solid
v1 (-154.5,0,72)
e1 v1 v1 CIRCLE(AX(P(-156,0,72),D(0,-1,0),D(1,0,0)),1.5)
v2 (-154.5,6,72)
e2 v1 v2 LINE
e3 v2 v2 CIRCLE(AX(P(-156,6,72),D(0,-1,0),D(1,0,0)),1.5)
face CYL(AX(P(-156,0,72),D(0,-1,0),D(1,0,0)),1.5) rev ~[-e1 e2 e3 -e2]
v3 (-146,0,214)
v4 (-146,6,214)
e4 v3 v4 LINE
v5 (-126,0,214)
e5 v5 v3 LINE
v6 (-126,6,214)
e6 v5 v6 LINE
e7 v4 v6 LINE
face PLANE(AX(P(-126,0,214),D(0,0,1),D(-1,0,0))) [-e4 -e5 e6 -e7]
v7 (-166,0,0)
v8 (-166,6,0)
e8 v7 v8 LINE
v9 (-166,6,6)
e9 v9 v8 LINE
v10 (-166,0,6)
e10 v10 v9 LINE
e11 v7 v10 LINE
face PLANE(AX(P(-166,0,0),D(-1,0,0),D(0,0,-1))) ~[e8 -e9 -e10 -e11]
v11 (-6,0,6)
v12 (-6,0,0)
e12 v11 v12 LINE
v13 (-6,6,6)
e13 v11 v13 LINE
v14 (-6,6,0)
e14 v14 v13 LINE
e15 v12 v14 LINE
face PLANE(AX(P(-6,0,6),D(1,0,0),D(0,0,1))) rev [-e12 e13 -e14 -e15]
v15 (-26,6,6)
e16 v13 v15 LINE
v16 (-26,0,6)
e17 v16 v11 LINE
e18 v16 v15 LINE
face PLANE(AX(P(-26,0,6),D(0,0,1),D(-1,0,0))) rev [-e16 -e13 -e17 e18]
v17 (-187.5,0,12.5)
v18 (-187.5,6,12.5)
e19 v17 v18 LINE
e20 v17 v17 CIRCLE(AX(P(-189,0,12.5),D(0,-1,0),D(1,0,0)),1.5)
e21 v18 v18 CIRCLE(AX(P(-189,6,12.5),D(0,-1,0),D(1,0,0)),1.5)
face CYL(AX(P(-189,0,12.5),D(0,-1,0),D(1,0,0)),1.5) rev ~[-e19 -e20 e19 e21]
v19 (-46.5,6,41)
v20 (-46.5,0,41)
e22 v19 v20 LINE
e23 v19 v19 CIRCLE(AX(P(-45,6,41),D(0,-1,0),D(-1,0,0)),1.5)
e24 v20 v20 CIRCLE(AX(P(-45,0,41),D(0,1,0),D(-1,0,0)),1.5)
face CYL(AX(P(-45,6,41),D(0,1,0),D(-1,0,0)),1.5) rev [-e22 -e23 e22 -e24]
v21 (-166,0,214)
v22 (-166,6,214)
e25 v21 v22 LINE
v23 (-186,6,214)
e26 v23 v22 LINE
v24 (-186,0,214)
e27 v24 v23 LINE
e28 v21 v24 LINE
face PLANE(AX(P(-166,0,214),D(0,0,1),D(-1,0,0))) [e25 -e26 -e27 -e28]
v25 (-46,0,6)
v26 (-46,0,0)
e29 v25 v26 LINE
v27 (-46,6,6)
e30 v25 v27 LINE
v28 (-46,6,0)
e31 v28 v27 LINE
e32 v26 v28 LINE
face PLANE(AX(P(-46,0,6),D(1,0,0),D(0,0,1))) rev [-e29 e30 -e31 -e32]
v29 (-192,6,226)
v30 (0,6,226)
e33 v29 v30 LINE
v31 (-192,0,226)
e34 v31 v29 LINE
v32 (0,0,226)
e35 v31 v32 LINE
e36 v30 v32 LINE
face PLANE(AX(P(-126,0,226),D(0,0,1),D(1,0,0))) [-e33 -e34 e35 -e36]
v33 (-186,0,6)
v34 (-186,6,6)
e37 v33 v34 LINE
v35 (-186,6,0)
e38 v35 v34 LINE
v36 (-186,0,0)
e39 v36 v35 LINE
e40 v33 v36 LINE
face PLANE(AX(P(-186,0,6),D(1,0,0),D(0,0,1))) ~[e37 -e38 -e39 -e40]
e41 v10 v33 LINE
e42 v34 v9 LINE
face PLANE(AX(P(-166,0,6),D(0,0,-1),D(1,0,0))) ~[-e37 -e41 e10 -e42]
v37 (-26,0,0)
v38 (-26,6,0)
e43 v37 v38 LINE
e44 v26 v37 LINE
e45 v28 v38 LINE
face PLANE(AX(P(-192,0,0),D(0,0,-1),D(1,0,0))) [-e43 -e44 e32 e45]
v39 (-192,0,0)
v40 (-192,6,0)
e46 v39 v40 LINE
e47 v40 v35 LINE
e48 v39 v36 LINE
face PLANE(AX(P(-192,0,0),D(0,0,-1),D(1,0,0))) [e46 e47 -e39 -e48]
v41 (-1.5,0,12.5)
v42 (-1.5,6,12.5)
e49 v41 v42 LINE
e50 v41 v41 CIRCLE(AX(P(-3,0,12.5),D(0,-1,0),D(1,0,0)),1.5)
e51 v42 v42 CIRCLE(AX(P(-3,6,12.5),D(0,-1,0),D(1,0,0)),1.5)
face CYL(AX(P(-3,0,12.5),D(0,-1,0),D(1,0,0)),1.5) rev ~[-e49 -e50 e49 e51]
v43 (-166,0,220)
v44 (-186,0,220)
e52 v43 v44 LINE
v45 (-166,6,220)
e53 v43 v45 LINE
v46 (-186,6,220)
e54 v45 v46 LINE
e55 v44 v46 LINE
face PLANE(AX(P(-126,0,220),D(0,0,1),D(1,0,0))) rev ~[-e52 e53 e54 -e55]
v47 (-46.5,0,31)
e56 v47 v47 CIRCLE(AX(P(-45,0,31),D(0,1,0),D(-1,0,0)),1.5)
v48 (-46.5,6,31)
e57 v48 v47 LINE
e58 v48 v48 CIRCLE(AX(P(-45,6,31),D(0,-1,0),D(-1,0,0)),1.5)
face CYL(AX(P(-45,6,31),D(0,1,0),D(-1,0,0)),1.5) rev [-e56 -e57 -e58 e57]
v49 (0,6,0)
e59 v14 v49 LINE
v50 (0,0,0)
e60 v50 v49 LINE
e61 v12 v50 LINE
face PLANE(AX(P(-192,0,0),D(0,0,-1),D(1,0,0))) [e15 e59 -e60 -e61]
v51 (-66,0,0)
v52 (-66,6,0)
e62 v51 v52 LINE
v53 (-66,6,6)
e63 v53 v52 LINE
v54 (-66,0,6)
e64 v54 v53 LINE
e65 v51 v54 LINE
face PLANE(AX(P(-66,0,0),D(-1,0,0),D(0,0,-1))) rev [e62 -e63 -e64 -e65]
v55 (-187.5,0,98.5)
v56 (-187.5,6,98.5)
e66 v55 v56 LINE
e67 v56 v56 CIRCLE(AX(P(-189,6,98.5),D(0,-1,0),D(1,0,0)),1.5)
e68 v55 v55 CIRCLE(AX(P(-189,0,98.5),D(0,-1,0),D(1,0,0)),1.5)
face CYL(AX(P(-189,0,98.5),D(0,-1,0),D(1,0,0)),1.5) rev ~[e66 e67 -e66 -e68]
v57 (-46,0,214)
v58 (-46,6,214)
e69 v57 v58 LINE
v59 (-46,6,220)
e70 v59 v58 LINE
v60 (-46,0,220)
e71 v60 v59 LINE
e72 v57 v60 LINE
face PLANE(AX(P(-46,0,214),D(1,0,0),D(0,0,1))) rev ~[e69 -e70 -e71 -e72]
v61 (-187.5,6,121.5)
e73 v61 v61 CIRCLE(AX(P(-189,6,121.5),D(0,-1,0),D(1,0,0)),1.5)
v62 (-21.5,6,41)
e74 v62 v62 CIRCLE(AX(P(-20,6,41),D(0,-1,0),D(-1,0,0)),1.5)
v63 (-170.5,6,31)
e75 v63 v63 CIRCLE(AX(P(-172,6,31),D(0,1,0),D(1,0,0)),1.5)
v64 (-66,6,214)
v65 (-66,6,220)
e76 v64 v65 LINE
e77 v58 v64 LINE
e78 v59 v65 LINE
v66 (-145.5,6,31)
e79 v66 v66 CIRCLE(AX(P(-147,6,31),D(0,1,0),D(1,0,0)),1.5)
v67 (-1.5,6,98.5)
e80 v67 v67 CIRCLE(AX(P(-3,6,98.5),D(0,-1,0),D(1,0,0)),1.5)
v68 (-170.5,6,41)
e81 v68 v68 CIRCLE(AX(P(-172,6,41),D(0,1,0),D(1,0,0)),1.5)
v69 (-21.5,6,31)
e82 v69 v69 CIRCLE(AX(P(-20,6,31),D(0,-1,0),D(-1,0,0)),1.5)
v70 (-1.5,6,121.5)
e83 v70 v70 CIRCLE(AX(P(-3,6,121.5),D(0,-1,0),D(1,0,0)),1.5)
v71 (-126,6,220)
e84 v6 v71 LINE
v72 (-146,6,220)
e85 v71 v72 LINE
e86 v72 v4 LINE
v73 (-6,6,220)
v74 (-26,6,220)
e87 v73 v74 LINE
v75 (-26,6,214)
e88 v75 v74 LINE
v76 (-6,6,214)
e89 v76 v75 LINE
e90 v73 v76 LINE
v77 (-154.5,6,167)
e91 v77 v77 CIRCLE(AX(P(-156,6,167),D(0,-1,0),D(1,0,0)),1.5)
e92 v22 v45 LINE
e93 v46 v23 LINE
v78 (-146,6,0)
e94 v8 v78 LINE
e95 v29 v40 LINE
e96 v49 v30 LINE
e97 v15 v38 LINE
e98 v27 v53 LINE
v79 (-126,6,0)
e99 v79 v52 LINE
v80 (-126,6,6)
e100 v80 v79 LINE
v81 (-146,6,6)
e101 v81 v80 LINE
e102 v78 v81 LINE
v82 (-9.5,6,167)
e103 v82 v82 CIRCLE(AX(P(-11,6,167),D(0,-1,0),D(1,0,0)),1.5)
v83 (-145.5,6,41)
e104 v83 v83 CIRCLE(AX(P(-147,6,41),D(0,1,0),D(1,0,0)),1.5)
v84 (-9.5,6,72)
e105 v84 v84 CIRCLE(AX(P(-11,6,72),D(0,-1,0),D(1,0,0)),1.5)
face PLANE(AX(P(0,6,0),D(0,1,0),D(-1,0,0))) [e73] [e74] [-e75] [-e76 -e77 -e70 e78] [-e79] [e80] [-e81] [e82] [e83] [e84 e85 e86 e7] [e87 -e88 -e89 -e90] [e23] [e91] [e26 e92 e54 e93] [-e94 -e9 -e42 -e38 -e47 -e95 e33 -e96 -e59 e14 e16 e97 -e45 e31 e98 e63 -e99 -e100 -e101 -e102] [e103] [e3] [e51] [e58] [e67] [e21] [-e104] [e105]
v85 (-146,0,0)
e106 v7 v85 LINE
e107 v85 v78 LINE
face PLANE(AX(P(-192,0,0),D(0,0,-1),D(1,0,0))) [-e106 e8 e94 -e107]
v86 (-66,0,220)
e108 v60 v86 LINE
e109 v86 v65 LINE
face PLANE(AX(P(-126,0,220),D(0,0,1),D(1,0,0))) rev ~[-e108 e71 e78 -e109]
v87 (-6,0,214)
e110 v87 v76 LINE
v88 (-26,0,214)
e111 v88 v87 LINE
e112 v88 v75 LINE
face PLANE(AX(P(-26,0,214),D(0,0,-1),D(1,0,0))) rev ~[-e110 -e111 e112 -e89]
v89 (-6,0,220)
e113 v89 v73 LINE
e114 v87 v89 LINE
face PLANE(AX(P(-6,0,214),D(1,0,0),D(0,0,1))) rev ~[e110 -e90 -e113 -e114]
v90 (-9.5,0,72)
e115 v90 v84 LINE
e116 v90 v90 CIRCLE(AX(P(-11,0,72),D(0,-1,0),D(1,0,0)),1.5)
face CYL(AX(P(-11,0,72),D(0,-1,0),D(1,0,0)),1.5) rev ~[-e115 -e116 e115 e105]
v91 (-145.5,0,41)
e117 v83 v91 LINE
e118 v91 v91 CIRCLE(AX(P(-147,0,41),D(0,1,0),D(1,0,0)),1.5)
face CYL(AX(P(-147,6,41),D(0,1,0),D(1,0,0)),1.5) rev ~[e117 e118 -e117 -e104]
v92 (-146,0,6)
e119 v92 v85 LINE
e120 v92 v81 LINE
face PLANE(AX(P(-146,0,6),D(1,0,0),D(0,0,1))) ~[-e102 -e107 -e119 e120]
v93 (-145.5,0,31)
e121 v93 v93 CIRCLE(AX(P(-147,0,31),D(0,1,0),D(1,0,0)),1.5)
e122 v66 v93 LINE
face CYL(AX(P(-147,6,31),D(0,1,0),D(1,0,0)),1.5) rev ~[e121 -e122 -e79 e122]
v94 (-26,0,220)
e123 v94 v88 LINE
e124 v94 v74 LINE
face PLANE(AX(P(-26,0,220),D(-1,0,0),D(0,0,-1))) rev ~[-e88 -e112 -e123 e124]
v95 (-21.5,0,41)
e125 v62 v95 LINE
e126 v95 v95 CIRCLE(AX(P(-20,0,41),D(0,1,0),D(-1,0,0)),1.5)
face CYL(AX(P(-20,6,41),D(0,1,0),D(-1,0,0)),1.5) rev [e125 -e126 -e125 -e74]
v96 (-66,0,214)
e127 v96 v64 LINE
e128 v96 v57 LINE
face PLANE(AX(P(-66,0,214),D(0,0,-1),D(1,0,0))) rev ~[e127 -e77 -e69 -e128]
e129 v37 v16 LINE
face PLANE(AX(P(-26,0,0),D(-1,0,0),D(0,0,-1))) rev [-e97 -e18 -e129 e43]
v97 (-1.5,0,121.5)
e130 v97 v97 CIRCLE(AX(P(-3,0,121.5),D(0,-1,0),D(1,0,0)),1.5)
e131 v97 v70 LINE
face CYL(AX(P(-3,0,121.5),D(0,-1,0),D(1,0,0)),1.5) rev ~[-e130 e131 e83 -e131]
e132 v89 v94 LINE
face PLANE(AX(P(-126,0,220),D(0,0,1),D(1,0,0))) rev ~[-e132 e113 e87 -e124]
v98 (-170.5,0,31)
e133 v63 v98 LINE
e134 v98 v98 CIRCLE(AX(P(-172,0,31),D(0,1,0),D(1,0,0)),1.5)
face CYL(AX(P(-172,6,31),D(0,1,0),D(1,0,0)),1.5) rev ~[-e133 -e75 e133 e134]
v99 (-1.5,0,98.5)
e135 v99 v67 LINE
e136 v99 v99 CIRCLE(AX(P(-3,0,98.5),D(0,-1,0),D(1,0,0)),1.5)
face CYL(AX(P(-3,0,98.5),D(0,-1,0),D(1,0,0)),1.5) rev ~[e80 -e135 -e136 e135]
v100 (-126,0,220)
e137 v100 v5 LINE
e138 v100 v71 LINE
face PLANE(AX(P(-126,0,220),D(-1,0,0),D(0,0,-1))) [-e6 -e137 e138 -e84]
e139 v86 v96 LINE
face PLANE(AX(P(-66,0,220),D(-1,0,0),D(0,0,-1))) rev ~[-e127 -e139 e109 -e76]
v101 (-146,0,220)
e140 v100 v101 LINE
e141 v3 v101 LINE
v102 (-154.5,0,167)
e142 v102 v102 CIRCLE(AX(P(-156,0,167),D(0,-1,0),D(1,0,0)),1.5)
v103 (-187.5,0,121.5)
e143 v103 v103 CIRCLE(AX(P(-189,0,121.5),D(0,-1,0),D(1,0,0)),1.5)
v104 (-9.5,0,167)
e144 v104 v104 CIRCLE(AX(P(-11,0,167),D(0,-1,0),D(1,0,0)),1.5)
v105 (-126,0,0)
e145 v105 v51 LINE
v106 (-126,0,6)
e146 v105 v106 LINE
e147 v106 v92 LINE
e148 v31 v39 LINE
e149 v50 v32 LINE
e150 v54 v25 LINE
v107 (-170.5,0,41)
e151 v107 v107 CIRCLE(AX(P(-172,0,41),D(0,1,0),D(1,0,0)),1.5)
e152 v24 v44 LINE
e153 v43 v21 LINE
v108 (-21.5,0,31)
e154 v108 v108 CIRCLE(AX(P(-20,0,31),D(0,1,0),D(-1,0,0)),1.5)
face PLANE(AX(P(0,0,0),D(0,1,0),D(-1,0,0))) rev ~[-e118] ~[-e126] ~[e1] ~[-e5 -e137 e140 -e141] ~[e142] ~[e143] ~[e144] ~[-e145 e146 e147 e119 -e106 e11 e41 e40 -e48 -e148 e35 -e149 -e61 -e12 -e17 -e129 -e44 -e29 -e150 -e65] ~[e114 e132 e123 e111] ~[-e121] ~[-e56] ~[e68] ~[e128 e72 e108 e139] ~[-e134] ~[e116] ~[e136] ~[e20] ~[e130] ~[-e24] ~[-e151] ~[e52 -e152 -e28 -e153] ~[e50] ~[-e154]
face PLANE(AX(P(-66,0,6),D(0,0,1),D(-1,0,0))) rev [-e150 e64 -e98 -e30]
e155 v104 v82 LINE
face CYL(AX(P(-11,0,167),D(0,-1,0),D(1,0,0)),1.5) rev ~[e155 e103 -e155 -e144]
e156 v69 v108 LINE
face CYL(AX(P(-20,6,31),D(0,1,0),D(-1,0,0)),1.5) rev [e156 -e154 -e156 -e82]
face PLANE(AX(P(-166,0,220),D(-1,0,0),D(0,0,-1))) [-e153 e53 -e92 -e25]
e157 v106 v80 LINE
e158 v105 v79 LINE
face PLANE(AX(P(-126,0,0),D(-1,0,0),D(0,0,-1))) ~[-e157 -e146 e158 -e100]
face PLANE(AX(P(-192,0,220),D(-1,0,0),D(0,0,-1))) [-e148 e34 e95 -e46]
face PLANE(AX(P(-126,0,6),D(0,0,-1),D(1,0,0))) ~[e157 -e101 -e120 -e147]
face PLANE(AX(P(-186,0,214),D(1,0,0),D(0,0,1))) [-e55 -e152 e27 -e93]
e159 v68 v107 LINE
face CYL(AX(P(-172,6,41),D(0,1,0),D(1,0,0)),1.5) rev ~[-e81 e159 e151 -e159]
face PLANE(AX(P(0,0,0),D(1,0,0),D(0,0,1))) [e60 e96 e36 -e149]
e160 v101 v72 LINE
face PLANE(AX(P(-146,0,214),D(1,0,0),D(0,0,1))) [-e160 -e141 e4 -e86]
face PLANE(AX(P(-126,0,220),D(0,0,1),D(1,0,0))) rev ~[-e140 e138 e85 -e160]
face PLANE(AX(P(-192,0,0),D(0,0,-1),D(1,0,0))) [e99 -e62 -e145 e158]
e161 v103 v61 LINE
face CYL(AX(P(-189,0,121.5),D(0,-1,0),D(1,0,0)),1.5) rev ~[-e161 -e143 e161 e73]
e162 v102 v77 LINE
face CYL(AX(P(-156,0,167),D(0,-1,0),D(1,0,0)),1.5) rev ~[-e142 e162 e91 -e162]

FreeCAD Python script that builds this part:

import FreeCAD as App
import Part
import Sketcher

V = App.Vector


def add_polygon(sketch, points):
    """Adds a closed chain of lines whose ends are joined by coincident constraints."""
    first, n = sketch.GeometryCount, len(points)
    for a, b in zip(points, points[1:] + points[:1]):
        sketch.addGeometry(Part.LineSegment(App.Vector(*a, 0), App.Vector(*b, 0)), False)
    for i in range(n):
        sketch.addConstraint(Sketcher.Constraint("Coincident", first + i, 2, first + (i + 1) % n, 1))

doc = App.newDocument("Part")
body = doc.addObject("PartDesign::Body", "Body")

# Sketch on XZ plane
sketch1 = body.newObject("Sketcher::SketchObject", "Sketch")
sketch1.AttachmentSupport = (doc.getObject("XZ_Plane"), [""])
sketch1.MapMode = "FlatFace"
add_polygon(sketch1, [(0, 220), (0, 0), (-192, 0), (-192, 220)])  # lines 0-3
sketch1.addConstraint(Sketcher.Constraint("Vertical", 0))
sketch1.addConstraint(Sketcher.Constraint("Horizontal", 1))
sketch1.addConstraint(Sketcher.Constraint("Vertical", 2))
sketch1.addConstraint(Sketcher.Constraint("Horizontal", 3))
sketch1.addConstraint(Sketcher.Constraint("Coincident", 0, 2, -1, 1))
sketch1.addConstraint(Sketcher.Constraint("DistanceX", 1, 2, 1, 1, 192.0))
sketch1.addConstraint(Sketcher.Constraint("DistanceY", 0, 2, 0, 1, 220.0))
pad1 = body.newObject("PartDesign::Pad", "Pad")
pad1.Profile = sketch1
pad1.Length = 6
pad1.Reversed = True

# Sketch on XZ plane
sketch2 = body.newObject("Sketcher::SketchObject", "Sketch001")
sketch2.AttachmentSupport = (doc.getObject("XZ_Plane"), [""])
sketch2.MapMode = "FlatFace"
add_polygon(sketch2, [(-6, 220), (-26, 220), (-26, 214), (-6, 214)])  # lines 0-3
add_polygon(sketch2, [(-46, 220), (-66, 220), (-66, 214), (-46, 214)])  # lines 4-7
add_polygon(sketch2, [(-126, 220), (-146, 220), (-146, 214), (-126, 214)])  # lines 8-11
add_polygon(sketch2, [(-166, 220), (-186, 220), (-186, 214), (-166, 214)])  # lines 12-15
sketch2.addConstraint(Sketcher.Constraint("Horizontal", 0))
sketch2.addConstraint(Sketcher.Constraint("Vertical", 1))
sketch2.addConstraint(Sketcher.Constraint("Horizontal", 2))
sketch2.addConstraint(Sketcher.Constraint("Vertical", 3))
sketch2.addConstraint(Sketcher.Constraint("Horizontal", 4))
sketch2.addConstraint(Sketcher.Constraint("Vertical", 5))
sketch2.addConstraint(Sketcher.Constraint("Horizontal", 6))
sketch2.addConstraint(Sketcher.Constraint("Vertical", 7))
sketch2.addConstraint(Sketcher.Constraint("Horizontal", 8))
sketch2.addConstraint(Sketcher.Constraint("Vertical", 9))
sketch2.addConstraint(Sketcher.Constraint("Horizontal", 10))
sketch2.addConstraint(Sketcher.Constraint("Vertical", 11))
sketch2.addConstraint(Sketcher.Constraint("Horizontal", 12))
sketch2.addConstraint(Sketcher.Constraint("Vertical", 13))
sketch2.addConstraint(Sketcher.Constraint("Horizontal", 14))
sketch2.addConstraint(Sketcher.Constraint("Vertical", 15))
sketch2.addConstraint(Sketcher.Constraint("Horizontal", 3, 2, 4, 2))
sketch2.addConstraint(Sketcher.Constraint("Horizontal", 2, 2, 5, 2))
sketch2.addConstraint(Sketcher.Constraint("Horizontal", 7, 2, 8, 2))
sketch2.addConstraint(Sketcher.Constraint("Horizontal", 6, 2, 9, 2))
sketch2.addConstraint(Sketcher.Constraint("Horizontal", 11, 2, 12, 2))
sketch2.addConstraint(Sketcher.Constraint("Horizontal", 10, 2, 13, 2))
sketch2.addConstraint(Sketcher.Constraint("Equal", 2, 4))
sketch2.addConstraint(Sketcher.Constraint("Equal", 6, 8))
sketch2.addConstraint(Sketcher.Constraint("Equal", 10, 12))
sketch2.addConstraint(Sketcher.Constraint("DistanceX", 0, 2, 0, 1, 20.0))
sketch2.addConstraint(Sketcher.Constraint("DistanceY", 1, 2, 1, 1, 6.0))
sketch2.addConstraint(Sketcher.Constraint("DistanceX", 2, 2, -1, 1, 6.0))
sketch2.addConstraint(Sketcher.Constraint("DistanceX", 6, 2, 1, 2, 20.0))
sketch2.addConstraint(Sketcher.Constraint("DistanceX", 14, 2, 9, 2, 20.0))
sketch2.addConstraint(Sketcher.Constraint("DistanceY", -1, 1, 0, 2, 220.0))
sketch2.addConstraint(Sketcher.Constraint("DistanceX", 8, 2, -1, 1, 146.0))
pocket1 = body.newObject("PartDesign::Pocket", "Pocket")
pocket1.Profile = sketch2
pocket1.Type = "ThroughAll"
doc.recompute()

datumplane = body.newObject("PartDesign::Plane", "DatumPlane")
datumplane.AttachmentSupport = (doc.getObject("XY_Plane"), [""])
datumplane.MapMode = "FlatFace"
datumplane.AttachmentOffset = App.Placement(V(0, 0, 110), App.Rotation())
mirrored = body.newObject("PartDesign::Mirrored", "Mirrored")
mirrored.Originals = [pocket1]
mirrored.MirrorPlane = (datumplane, [""])
body.Tip = mirrored

# Sketch on XZ plane
sketch3 = body.newObject("Sketcher::SketchObject", "Sketch002")
sketch3.AttachmentSupport = (doc.getObject("XZ_Plane"), [""])
sketch3.MapMode = "FlatFace"
sketch3.addGeometry(Part.Circle(V(-3, 98.5, 0), V(0, 0, 1), 1.5), False)
sketch3.addGeometry(Part.Circle(V(-3, 121.5, 0), V(0, 0, 1), 1.5), False)
sketch3.addGeometry(Part.Circle(V(-189, 98.5, 0), V(0, 0, 1), 1.5), False)
sketch3.addGeometry(Part.Circle(V(-189, 121.5, 0), V(0, 0, 1), 1.5), False)
sketch3.addConstraint(Sketcher.Constraint("Equal", 0, 1))
sketch3.addConstraint(Sketcher.Constraint("Equal", 1, 2))
sketch3.addConstraint(Sketcher.Constraint("Equal", 2, 3))
sketch3.addConstraint(Sketcher.Constraint("Horizontal", 0, 3, 2, 3))
sketch3.addConstraint(Sketcher.Constraint("Horizontal", 1, 3, 3, 3))
sketch3.addConstraint(Sketcher.Constraint("Vertical", 0, 3, 1, 3))
sketch3.addConstraint(Sketcher.Constraint("Vertical", 2, 3, 3, 3))
sketch3.addConstraint(Sketcher.Constraint("Diameter", 0, 3.0))
sketch3.addConstraint(Sketcher.Constraint("DistanceX", 0, 3, -1, 1, 3.0))
sketch3.addConstraint(Sketcher.Constraint("DistanceX", 2, 3, -1, 1, 189.0))
sketch3.addConstraint(Sketcher.Constraint("DistanceY", 0, 3, 1, 3, 23.0))
sketch3.addConstraint(Sketcher.Constraint("DistanceY", -1, 1, 0, 3, 98.5))
pocket2 = body.newObject("PartDesign::Pocket", "Pocket001")
pocket2.Profile = sketch3
pocket2.Length = 10

# Sketch on XZ plane
sketch4 = body.newObject("Sketcher::SketchObject", "Sketch003")
sketch4.AttachmentSupport = (doc.getObject("XZ_Plane"), [""])
sketch4.MapMode = "FlatFace"
sketch4.AttachmentOffset = App.Placement(V(0, 0, -6), App.Rotation())
sketch4.addGeometry(Part.Circle(V(-172, 41, 0), V(0, 0, 1), 1.5), False)
sketch4.addGeometry(Part.Circle(V(-172, 31, 0), V(0, 0, 1), 1.5), False)
sketch4.addGeometry(Part.Circle(V(-147, 41, 0), V(0, 0, 1), 1.5), False)
sketch4.addGeometry(Part.Circle(V(-147, 31, 0), V(0, 0, 1), 1.5), False)
sketch4.addConstraint(Sketcher.Constraint("Equal", 0, 1))
sketch4.addConstraint(Sketcher.Constraint("Equal", 1, 2))
sketch4.addConstraint(Sketcher.Constraint("Equal", 2, 3))
sketch4.addConstraint(Sketcher.Constraint("Horizontal", 0, 3, 2, 3))
sketch4.addConstraint(Sketcher.Constraint("Horizontal", 1, 3, 3, 3))
sketch4.addConstraint(Sketcher.Constraint("Vertical", 0, 3, 1, 3))
sketch4.addConstraint(Sketcher.Constraint("Vertical", 2, 3, 3, 3))
sketch4.addConstraint(Sketcher.Constraint("Diameter", 0, 3.0))
sketch4.addConstraint(Sketcher.Constraint("DistanceY", 1, 3, 0, 3, 10.0))
sketch4.addConstraint(Sketcher.Constraint("DistanceX", 0, 3, 2, 3, 25.0))
sketch4.addConstraint(Sketcher.Constraint("DistanceX", 0, 3, -1, 1, 172.0))
sketch4.addConstraint(Sketcher.Constraint("DistanceY", -1, 1, 0, 3, 41.0))
pocket3 = body.newObject("PartDesign::Pocket", "Pocket002")
pocket3.Profile = sketch4
pocket3.Length = 10
pocket3.Reversed = True
doc.recompute()

datumplane2 = body.newObject("PartDesign::Plane", "DatumPlane001")
datumplane2.AttachmentSupport = (doc.getObject("YZ_Plane"), [""])
datumplane2.MapMode = "FlatFace"
datumplane2.AttachmentOffset = App.Placement(V(0, 0, -96), App.Rotation())
mirrored2 = body.newObject("PartDesign::Mirrored", "Mirrored001")
mirrored2.Originals = [pocket3]
mirrored2.MirrorPlane = (datumplane2, [""])
body.Tip = mirrored2

# Sketch on XY plane
sketch5 = body.newObject("Sketcher::SketchObject", "Sketch004")
sketch5.AttachmentSupport = (doc.getObject("XY_Plane"), [""])
sketch5.MapMode = "FlatFace"
sketch5.AttachmentOffset = App.Placement(V(0, 0, 220), App.Rotation())
add_polygon(sketch5, [(-192, 6), (-192, 0), (0, 0), (0, 6)])  # lines 0-3
sketch5.addConstraint(Sketcher.Constraint("Vertical", 0))
sketch5.addConstraint(Sketcher.Constraint("Horizontal", 1))
sketch5.addConstraint(Sketcher.Constraint("Vertical", 2))
sketch5.addConstraint(Sketcher.Constraint("Horizontal", 3))
sketch5.addConstraint(Sketcher.Constraint("Coincident", 1, 2, -1, 1))
sketch5.addConstraint(Sketcher.Constraint("DistanceX", 1, 1, 1, 2, 192.0))
sketch5.addConstraint(Sketcher.Constraint("DistanceY", 0, 2, 0, 1, 6.0))
pad2 = body.newObject("PartDesign::Pad", "Pad001")
pad2.Profile = sketch5
pad2.Length = 6

# Sketch on XZ plane
sketch6 = body.newObject("Sketcher::SketchObject", "Sketch005")
sketch6.AttachmentSupport = (doc.getObject("XZ_Plane"), [""])
sketch6.MapMode = "FlatFace"
sketch6.addGeometry(Part.Circle(V(-3, 12.5, 0), V(0, 0, 1), 1.5), False)
sketch6.addGeometry(Part.Circle(V(-189, 12.5, 0), V(0, 0, 1), 1.5), False)
sketch6.addConstraint(Sketcher.Constraint("Equal", 0, 1))
sketch6.addConstraint(Sketcher.Constraint("Horizontal", 0, 3, 1, 3))
sketch6.addConstraint(Sketcher.Constraint("Diameter", 0, 3.0))
sketch6.addConstraint(Sketcher.Constraint("DistanceX", 0, 3, -1, 1, 3.0))
sketch6.addConstraint(Sketcher.Constraint("DistanceX", 1, 3, -1, 1, 189.0))
sketch6.addConstraint(Sketcher.Constraint("DistanceY", -1, 1, 0, 3, 12.5))
pocket4 = body.newObject("PartDesign::Pocket", "Pocket003")
pocket4.Profile = sketch6
pocket4.Type = "ThroughAll"

# Sketch on XZ plane
sketch7 = body.newObject("Sketcher::SketchObject", "Sketch006")
sketch7.AttachmentSupport = (doc.getObject("XZ_Plane"), [""])
sketch7.MapMode = "FlatFace"
sketch7.addGeometry(Part.Circle(V(-11, 167, 0), V(0, 0, 1), 1.5), False)
sketch7.addGeometry(Part.Circle(V(-11, 72, 0), V(0, 0, 1), 1.5), False)
sketch7.addGeometry(Part.Circle(V(-156, 167, 0), V(0, 0, 1), 1.5), False)
sketch7.addGeometry(Part.Circle(V(-156, 72, 0), V(0, 0, 1), 1.5), False)
sketch7.addConstraint(Sketcher.Constraint("Equal", 0, 1))
sketch7.addConstraint(Sketcher.Constraint("Equal", 1, 2))
sketch7.addConstraint(Sketcher.Constraint("Equal", 2, 3))
sketch7.addConstraint(Sketcher.Constraint("Horizontal", 0, 3, 2, 3))
sketch7.addConstraint(Sketcher.Constraint("Horizontal", 1, 3, 3, 3))
sketch7.addConstraint(Sketcher.Constraint("Vertical", 0, 3, 1, 3))
sketch7.addConstraint(Sketcher.Constraint("Vertical", 2, 3, 3, 3))
sketch7.addConstraint(Sketcher.Constraint("Diameter", 0, 3.0))
sketch7.addConstraint(Sketcher.Constraint("DistanceX", 0, 3, -1, 1, 11.0))
sketch7.addConstraint(Sketcher.Constraint("DistanceY", 1, 3, 0, 3, 95.0))
sketch7.addConstraint(Sketcher.Constraint("DistanceX", 2, 3, 0, 3, 145.0))
sketch7.addConstraint(Sketcher.Constraint("DistanceY", -1, 1, 0, 3, 167.0))
pocket5 = body.newObject("PartDesign::Pocket", "Pocket004")
pocket5.Profile = sketch7
pocket5.Type = "ThroughAll"

doc.recompute()
